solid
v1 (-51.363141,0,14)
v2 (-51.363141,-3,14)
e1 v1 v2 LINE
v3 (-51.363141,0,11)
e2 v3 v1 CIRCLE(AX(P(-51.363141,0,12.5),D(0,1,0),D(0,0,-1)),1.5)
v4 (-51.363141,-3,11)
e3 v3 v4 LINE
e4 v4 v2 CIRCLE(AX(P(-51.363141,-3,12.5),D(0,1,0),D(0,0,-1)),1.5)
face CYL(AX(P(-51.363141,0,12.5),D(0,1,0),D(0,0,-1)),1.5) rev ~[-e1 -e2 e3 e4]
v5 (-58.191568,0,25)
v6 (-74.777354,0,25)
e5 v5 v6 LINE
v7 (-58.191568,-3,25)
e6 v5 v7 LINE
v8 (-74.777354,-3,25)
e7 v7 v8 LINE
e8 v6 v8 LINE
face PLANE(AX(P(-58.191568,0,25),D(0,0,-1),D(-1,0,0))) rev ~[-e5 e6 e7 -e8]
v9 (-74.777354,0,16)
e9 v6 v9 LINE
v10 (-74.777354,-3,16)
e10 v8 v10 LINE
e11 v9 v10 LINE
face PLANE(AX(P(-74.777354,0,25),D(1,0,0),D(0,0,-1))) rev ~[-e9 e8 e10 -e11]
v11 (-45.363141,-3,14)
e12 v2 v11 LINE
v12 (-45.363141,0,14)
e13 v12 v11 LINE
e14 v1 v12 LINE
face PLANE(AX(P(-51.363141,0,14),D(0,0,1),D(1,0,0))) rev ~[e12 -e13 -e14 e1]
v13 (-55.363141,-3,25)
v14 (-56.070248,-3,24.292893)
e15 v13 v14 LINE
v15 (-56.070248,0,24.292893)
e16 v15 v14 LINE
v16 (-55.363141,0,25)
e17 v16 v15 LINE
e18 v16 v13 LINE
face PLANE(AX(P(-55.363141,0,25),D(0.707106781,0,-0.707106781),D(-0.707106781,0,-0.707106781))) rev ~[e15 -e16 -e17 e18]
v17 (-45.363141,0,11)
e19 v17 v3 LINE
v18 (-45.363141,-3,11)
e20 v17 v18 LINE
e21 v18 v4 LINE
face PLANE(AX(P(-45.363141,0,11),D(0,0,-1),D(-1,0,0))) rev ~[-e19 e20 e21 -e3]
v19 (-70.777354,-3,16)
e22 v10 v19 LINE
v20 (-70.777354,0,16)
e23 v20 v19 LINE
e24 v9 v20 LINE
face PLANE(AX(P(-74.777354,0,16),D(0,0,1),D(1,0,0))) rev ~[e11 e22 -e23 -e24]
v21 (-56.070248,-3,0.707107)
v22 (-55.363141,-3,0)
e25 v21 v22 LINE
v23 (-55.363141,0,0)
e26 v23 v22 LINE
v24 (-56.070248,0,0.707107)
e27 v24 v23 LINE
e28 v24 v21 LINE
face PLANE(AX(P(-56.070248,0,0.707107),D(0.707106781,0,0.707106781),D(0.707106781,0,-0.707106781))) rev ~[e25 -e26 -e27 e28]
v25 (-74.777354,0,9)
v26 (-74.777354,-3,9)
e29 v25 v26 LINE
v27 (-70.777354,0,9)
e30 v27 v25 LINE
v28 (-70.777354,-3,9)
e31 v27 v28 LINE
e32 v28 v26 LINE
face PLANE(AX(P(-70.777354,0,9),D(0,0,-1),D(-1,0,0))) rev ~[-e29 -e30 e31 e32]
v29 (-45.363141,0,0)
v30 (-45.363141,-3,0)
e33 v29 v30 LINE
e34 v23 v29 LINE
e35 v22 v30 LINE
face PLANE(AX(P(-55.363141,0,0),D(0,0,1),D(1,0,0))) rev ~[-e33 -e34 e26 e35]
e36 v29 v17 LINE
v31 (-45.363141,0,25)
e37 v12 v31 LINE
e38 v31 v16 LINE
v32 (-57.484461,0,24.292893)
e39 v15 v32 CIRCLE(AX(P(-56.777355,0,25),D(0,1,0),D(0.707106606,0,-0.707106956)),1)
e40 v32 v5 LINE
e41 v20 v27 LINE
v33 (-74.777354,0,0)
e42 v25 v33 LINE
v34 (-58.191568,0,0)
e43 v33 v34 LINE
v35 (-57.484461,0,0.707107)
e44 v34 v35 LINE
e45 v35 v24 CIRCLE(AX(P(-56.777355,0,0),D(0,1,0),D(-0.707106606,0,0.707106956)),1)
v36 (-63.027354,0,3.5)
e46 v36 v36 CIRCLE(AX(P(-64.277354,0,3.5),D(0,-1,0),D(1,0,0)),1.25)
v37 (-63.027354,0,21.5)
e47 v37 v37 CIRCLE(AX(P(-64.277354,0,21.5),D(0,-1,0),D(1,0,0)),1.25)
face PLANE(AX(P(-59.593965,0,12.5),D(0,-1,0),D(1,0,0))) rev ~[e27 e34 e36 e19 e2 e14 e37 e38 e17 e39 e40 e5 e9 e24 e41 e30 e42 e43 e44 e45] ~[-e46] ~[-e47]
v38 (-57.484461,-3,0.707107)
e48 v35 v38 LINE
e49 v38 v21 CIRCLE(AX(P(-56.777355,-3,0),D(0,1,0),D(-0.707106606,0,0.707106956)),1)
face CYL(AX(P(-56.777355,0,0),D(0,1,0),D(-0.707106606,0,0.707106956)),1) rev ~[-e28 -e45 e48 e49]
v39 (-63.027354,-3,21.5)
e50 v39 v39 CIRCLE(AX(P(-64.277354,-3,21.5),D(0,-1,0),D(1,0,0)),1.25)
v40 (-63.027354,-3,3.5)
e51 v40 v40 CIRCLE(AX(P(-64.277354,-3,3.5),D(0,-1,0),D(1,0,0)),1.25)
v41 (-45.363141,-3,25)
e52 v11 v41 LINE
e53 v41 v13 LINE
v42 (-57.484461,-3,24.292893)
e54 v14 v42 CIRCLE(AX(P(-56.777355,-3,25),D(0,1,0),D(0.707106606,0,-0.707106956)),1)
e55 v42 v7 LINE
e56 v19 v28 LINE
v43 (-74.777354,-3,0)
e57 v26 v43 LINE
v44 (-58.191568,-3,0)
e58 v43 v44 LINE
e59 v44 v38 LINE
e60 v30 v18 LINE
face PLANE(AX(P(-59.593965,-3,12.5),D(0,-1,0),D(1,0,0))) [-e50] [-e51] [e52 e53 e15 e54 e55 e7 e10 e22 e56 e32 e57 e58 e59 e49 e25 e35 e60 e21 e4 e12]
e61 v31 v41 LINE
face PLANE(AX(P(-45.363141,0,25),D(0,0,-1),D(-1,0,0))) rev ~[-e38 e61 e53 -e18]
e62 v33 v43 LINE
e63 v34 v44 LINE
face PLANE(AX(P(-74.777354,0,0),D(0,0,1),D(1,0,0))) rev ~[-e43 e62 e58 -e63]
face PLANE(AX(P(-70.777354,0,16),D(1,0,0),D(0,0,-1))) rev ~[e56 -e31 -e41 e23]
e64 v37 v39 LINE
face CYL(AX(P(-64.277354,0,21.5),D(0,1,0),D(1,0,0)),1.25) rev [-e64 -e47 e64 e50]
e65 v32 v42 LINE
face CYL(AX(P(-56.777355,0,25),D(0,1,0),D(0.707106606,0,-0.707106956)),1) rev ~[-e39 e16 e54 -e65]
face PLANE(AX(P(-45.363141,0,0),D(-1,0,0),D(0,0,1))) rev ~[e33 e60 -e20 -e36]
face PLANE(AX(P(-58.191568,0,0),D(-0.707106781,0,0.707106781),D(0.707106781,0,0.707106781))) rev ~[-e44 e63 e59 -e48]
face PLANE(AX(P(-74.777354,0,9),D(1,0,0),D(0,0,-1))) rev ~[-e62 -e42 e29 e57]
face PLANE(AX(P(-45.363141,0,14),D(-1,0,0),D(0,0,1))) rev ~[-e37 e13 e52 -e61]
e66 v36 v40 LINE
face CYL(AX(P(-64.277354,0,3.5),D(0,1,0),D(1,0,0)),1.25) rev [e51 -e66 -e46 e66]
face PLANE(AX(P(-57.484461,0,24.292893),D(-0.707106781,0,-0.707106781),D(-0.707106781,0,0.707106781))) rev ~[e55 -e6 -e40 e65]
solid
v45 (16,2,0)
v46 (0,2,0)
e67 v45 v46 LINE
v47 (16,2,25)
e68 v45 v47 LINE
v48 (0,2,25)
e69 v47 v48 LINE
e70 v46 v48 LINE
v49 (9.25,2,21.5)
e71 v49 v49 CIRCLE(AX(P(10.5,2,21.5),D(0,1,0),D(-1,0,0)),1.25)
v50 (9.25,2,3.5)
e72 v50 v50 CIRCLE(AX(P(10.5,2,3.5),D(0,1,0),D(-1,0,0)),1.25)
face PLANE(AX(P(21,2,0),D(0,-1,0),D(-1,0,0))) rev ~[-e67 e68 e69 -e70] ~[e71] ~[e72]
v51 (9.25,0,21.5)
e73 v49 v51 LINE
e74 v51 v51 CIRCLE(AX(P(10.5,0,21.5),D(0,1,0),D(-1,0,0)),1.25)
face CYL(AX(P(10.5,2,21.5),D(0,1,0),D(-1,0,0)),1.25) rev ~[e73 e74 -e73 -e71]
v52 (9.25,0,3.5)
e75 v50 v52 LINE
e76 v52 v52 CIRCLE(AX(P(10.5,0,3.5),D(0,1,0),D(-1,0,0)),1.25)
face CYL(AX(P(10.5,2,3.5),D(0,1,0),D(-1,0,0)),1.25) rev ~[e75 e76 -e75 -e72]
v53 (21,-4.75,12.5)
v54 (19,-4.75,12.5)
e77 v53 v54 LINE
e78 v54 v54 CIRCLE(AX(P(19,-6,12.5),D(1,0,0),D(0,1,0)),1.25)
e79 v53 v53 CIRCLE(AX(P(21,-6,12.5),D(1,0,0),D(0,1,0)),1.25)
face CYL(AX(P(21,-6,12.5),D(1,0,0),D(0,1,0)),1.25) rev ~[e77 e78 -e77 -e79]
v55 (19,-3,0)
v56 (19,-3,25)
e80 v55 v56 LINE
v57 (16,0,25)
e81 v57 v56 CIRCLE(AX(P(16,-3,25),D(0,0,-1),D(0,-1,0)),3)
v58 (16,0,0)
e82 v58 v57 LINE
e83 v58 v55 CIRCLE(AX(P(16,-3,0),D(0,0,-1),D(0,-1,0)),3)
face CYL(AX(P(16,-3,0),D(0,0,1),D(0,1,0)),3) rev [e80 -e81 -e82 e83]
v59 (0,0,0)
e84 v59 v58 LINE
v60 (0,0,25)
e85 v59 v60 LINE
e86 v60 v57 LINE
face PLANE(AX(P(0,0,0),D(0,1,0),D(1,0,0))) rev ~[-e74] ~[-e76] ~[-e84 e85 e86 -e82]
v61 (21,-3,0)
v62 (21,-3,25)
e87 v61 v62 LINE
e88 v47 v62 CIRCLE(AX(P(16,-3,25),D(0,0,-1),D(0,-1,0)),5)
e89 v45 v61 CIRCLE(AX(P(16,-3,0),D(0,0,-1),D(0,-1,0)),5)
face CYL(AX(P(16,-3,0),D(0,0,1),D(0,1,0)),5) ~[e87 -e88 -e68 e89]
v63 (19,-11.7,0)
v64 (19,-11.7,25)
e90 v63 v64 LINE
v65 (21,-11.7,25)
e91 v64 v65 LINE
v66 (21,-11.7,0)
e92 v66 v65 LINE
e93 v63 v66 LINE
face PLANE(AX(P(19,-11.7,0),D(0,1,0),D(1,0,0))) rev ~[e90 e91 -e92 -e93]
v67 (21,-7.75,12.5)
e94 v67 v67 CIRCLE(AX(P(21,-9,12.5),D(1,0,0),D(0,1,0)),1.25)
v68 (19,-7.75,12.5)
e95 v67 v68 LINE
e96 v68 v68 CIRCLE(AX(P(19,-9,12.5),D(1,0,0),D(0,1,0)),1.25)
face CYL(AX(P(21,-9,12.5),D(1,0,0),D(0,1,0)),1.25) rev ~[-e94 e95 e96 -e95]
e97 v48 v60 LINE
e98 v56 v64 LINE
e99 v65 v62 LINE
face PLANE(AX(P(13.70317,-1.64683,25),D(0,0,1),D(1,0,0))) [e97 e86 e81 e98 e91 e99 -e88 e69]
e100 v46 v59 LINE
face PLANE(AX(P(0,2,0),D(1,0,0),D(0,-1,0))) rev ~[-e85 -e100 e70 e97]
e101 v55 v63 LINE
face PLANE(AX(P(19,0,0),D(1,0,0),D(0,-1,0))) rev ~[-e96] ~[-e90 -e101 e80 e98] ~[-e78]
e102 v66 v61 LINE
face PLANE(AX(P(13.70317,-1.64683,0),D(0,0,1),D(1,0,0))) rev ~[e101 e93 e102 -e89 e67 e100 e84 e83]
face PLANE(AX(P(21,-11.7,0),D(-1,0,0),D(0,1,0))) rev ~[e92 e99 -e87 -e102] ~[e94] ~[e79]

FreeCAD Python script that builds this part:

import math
import FreeCAD as App
import Part
import Sketcher

V = App.Vector
Q = App.Units.Quantity


def edges_at(feature, points):
    """Names of the edges that pass closest to the given points."""
    edges = feature.Shape.Edges
    near = lambda p: min(range(len(edges)), key=lambda i: edges[i].distToShape(Part.Vertex(*p))[0])
    return sorted({f"Edge{near(p) + 1}" for p in points})

doc = App.newDocument("Part")
params = doc.addObject("Spreadsheet::Sheet", "Params")
for row, (alias, value) in enumerate([
    ("sketch1_width", "19 mm"),
    ("sketch1_width2", "2 mm"),
    ("sketch1_height", "11.7 mm"),
    ("pad1_length", "25 mm"),
    ("fillet_radius", "3 mm"),
    ("sketch2_diameter", "2.5 mm"),
    ("pocket1_length", "25 mm"),
    ("sketch3_diameter", "2.5 mm"),
    ("pocket2_length", "25 mm"),
    ("fillet2_radius", "5 mm"),
    ("sketch4_radius", "1 mm"),
    ("sketch4_diameter", "2.5 mm"),
    ("sketch4_radius2", "1.5 mm"),
    ("sketch4_width", "10 mm"),
    ("sketch4_width2", "6 mm"),
    ("pad2_length", "3 mm"),
], start=1):
    params.set(f"A{row}", alias)
    params.set(f"B{row}", "=" + value)
    params.setAlias(f"B{row}", alias)

body = doc.addObject("PartDesign::Body", "Body")

# Sketch on XY plane
sketch1 = doc.addObject("Sketcher::SketchObject", "Sketch")
body.addObject(sketch1)
sketch1.AttachmentSupport = (doc.XY_Plane, [""])
sketch1.MapMode = "FlatFace"
sketch1.addGeometry([
    Part.LineSegment(V(0, 2, 0), V(0, 0, 0)),  # 0
    Part.LineSegment(V(0, 0, 0), V(19, 0, 0)),  # 1
    Part.LineSegment(V(19, 0, 0), V(19, -11.7, 0)),  # 2
    Part.LineSegment(V(19, -11.7, 0), V(21, -11.7, 0)),  # 3
    Part.LineSegment(V(21, -11.7, 0), V(21, 2, 0)),  # 4
    Part.LineSegment(V(21, 2, 0), V(0, 2, 0)),  # 5
], False)
sketch1.addConstraint([
    Sketcher.Constraint("Coincident", 0, 2, 1, 1),
    Sketcher.Constraint("Coincident", 1, 2, 2, 1),
    Sketcher.Constraint("Coincident", 2, 2, 3, 1),
    Sketcher.Constraint("Coincident", 3, 2, 4, 1),
    Sketcher.Constraint("Coincident", 4, 2, 5, 1),
    Sketcher.Constraint("Coincident", 5, 2, 0, 1),
    Sketcher.Constraint("Vertical", 0),
    Sketcher.Constraint("Horizontal", 1),
    Sketcher.Constraint("Vertical", 2),
    Sketcher.Constraint("Horizontal", 3),
    Sketcher.Constraint("Vertical", 4),
    Sketcher.Constraint("Horizontal", 5),
    Sketcher.Constraint("Coincident", 0, 2, -1, 1),
    Sketcher.Constraint("Equal", 3, 0),
    Sketcher.Constraint("DistanceX", 1, 1, 1, 2, Q("19 mm")),
    Sketcher.Constraint("DistanceX", 3, 1, 3, 2, Q("2 mm")),
    Sketcher.Constraint("DistanceY", 2, 2, 2, 1, Q("11.7 mm")),
])
sketch1.setExpression("Constraints[14]", "Params.sketch1_width")
sketch1.setExpression("Constraints[15]", "Params.sketch1_width2")
sketch1.setExpression("Constraints[16]", "Params.sketch1_height")
pad1 = doc.addObject("PartDesign::Pad", "Pad")
body.addObject(pad1)
pad1.Profile = sketch1
pad1.setExpression("Length", "Params.pad1_length")
doc.recompute()

fillet = doc.addObject("PartDesign::Fillet", "Fillet")
body.addObject(fillet)
fillet.Base = (pad1, edges_at(pad1, [(19, 0, 12.5)]))
fillet.setExpression("Radius", "Params.fillet_radius")

# Sketch on YZ plane
sketch2 = doc.addObject("Sketcher::SketchObject", "Sketch001")
body.addObject(sketch2)
sketch2.AttachmentSupport = (doc.YZ_Plane, [""])
sketch2.MapMode = "FlatFace"
sketch2.AttachmentOffset = App.Placement(V(0, 0, 21), App.Rotation())
sketch2.addGeometry([
    Part.Circle(V(-6, 12.5, 0), V(0, 0, 1), 1.2),
    Part.Circle(V(-9, 12.5, 0), V(0, 0, 1), 1.2),
], False)
sketch2.addConstraint([
    Sketcher.Constraint("Equal", 0, 1),
    Sketcher.Constraint("Horizontal", 0, 3, 1, 3),
    Sketcher.Constraint("Diameter", 0, Q("2.5 mm")),
    Sketcher.Constraint("DistanceX", 0, 3, -1, 1, Q("6 mm")),
    Sketcher.Constraint("DistanceX", 1, 3, -1, 1, Q("9 mm")),
    Sketcher.Constraint("DistanceY", -1, 1, 0, 3, Q("12.5 mm")),
])
sketch2.setExpression("Constraints[2]", "Params.sketch2_diameter")
pocket1 = doc.addObject("PartDesign::Pocket", "Pocket")
body.addObject(pocket1)
pocket1.Profile = sketch2
pocket1.setExpression("Length", "Params.pocket1_length")

# Sketch on XZ plane
sketch3 = doc.addObject("Sketcher::SketchObject", "Sketch002")
body.addObject(sketch3)
sketch3.AttachmentSupport = (doc.XZ_Plane, [""])
sketch3.MapMode = "FlatFace"
sketch3.AttachmentOffset = App.Placement(V(0, 0, -2), App.Rotation())
sketch3.addGeometry([
    Part.Circle(V(10.5, 21.5, 0), V(0, 0, 1), 1.2),
    Part.Circle(V(10.5, 3.5, 0), V(0, 0, 1), 1.2),
], False)
sketch3.addConstraint([
    Sketcher.Constraint("Equal", 0, 1),
    Sketcher.Constraint("Vertical", 0, 3, 1, 3),
    Sketcher.Constraint("Diameter", 0, Q("2.5 mm")),
    Sketcher.Constraint("DistanceY", 1, 3, 0, 3, Q("18 mm")),
    Sketcher.Constraint("DistanceX", -1, 1, 0, 3, Q("10.5 mm")),
    Sketcher.Constraint("DistanceY", -1, 1, 0, 3, Q("21.5 mm")),
])
sketch3.setExpression("Constraints[2]", "Params.sketch3_diameter")
pocket2 = doc.addObject("PartDesign::Pocket", "Pocket001")
body.addObject(pocket2)
pocket2.Profile = sketch3
pocket2.setExpression("Length", "Params.pocket2_length")
pocket2.Reversed = True
doc.recompute()

fillet2 = doc.addObject("PartDesign::Fillet", "Fillet001")
body.addObject(fillet2)
fillet2.Base = (pocket2, edges_at(pocket2, [(21, 2, 12.5)]))
fillet2.setExpression("Radius", "Params.fillet2_radius")
body2 = doc.addObject("PartDesign::Body", "Body001")

# Sketch on XZ plane
sketch4 = doc.addObject("Sketcher::SketchObject", "Sketch003")
body2.addObject(sketch4)
sketch4.AttachmentSupport = (doc.getObject("XZ_Plane001"), [""])
sketch4.MapMode = "FlatFace"
sketch4.addGeometry([
    Part.LineSegment(V(-74.8, 9, 0), V(-74.8, 0, 0)),  # 0
    Part.LineSegment(V(-74.8, 0, 0), V(-58.2, 0, 0)),  # 1
    Part.LineSegment(V(-58.2, 0, 0), V(-57.5, 0.7, 0)),  # 2
    Part.ArcOfCircle(Part.Circle(V(-56.8, 0, 0), V(0, 0, 1), 1), math.radians(45), math.radians(135)),  # 3
    Part.LineSegment(V(-56.1, 0.7, 0), V(-55.4, 0, 0)),  # 4
    Part.LineSegment(V(-55.4, 0, 0), V(-45.4, 0, 0)),  # 5
    Part.LineSegment(V(-45.4, 0, 0), V(-45.4, 11, 0)),  # 6
    Part.LineSegment(V(-45.4, 11, 0), V(-51.4, 11, 0)),  # 7
    Part.ArcOfCircle(Part.Circle(V(-51.4, 12.5, 0), V(0, 0, 1), 1.5), math.radians(90), math.radians(270)),  # 8
    Part.LineSegment(V(-51.4, 14, 0), V(-45.4, 14, 0)),  # 9
    Part.LineSegment(V(-45.4, 14, 0), V(-45.4, 25, 0)),  # 10
    Part.LineSegment(V(-45.4, 25, 0), V(-55.4, 25, 0)),  # 11
    Part.LineSegment(V(-55.4, 25, 0), V(-56.1, 24.3, 0)),  # 12
    Part.ArcOfCircle(Part.Circle(V(-56.8, 25, 0), V(0, 0, 1), 1), math.radians(-135), math.radians(-45)),  # 13
    Part.LineSegment(V(-57.5, 24.3, 0), V(-58.2, 25, 0)),  # 14
    Part.LineSegment(V(-58.2, 25, 0), V(-74.8, 25, 0)),  # 15
    Part.LineSegment(V(-74.8, 25, 0), V(-74.8, 16, 0)),  # 16
    Part.LineSegment(V(-74.8, 16, 0), V(-70.8, 16, 0)),  # 17
    Part.LineSegment(V(-70.8, 16, 0), V(-70.8, 9, 0)),  # 18
    Part.LineSegment(V(-70.8, 9, 0), V(-74.8, 9, 0)),  # 19
    Part.Circle(V(-64.3, 3.5, 0), V(0, 0, 1), 1.2),  # 20
    Part.Circle(V(-64.3, 21.5, 0), V(0, 0, 1), 1.2),  # 21
], False)
sketch4.addConstraint([
    Sketcher.Constraint("Coincident", 0, 2, 1, 1),
    Sketcher.Constraint("Coincident", 1, 2, 2, 1),
    Sketcher.Constraint("Tangent", 2, 2, 3, 2),
    Sketcher.Constraint("Tangent", 3, 1, 4, 1),
    Sketcher.Constraint("Coincident", 4, 2, 5, 1),
    Sketcher.Constraint("Coincident", 5, 2, 6, 1),
    Sketcher.Constraint("Coincident", 6, 2, 7, 1),
    Sketcher.Constraint("Tangent", 7, 2, 8, 2),
    Sketcher.Constraint("Tangent", 8, 1, 9, 1),
    Sketcher.Constraint("Coincident", 9, 2, 10, 1),
    Sketcher.Constraint("Coincident", 10, 2, 11, 1),
    Sketcher.Constraint("Coincident", 11, 2, 12, 1),
    Sketcher.Constraint("Tangent", 12, 2, 13, 2),
    Sketcher.Constraint("Tangent", 13, 1, 14, 1),
    Sketcher.Constraint("Coincident", 14, 2, 15, 1),
    Sketcher.Constraint("Coincident", 15, 2, 16, 1),
    Sketcher.Constraint("Coincident", 16, 2, 17, 1),
    Sketcher.Constraint("Coincident", 17, 2, 18, 1),
    Sketcher.Constraint("Coincident", 18, 2, 19, 1),
    Sketcher.Constraint("Coincident", 19, 2, 0, 1),
    Sketcher.Constraint("Vertical", 0),
    Sketcher.Constraint("Horizontal", 1),
    Sketcher.Constraint("Horizontal", 5),
    Sketcher.Constraint("Vertical", 6),
    Sketcher.Constraint("Horizontal", 7),
    Sketcher.Constraint("Horizontal", 9),
    Sketcher.Constraint("Vertical", 10),
    Sketcher.Constraint("Horizontal", 11),
    Sketcher.Constraint("Horizontal", 15),
    Sketcher.Constraint("Vertical", 16),
    Sketcher.Constraint("Horizontal", 17),
    Sketcher.Constraint("Vertical", 18),
    Sketcher.Constraint("Horizontal", 19),
    Sketcher.Constraint("Equal", 3, 13),
    Sketcher.Constraint("Equal", 20, 21),
    Sketcher.Constraint("PointOnObject", 3, 3, -1),
    Sketcher.Constraint("PointOnObject", 0, 2, -1),
    Sketcher.Constraint("PointOnObject", 4, 2, -1),
    Sketcher.Constraint("Perpendicular", 2, 4),
    Sketcher.Constraint("Perpendicular", 4, 12),
    Sketcher.Constraint("Perpendicular", 12, 14),
    Sketcher.Constraint("Horizontal", 2, 2, 3, 1),
    Sketcher.Constraint("Horizontal", 13, 3, 10, 2),
    Sketcher.Constraint("Horizontal", 11, 2, 14, 2),
    Sketcher.Constraint("Vertical", 3, 3, 13, 3),
    Sketcher.Constraint("Vertical", 20, 3, 21, 3),
    Sketcher.Constraint("Vertical", 6, 2, 9, 2),
    Sketcher.Constraint("Vertical", 0, 2, 15, 2),
    Sketcher.Constraint("Equal", 6, 10),
    Sketcher.Constraint("Equal", 0, 16),
    Sketcher.Constraint("Radius", 3, Q("1 mm")),
    Sketcher.Constraint("Diameter", 20, Q("2.5 mm")),
    Sketcher.Constraint("Radius", 8, Q("1.5 mm")),
    Sketcher.Constraint("DistanceX", 5, 1, 5, 2, Q("10 mm")),
    Sketcher.Constraint("DistanceX", 7, 2, 7, 1, Q("6 mm")),
    Sketcher.Constraint("DistanceX", 17, 1, 17, 2, Q("4 mm")),
    Sketcher.Constraint("DistanceY", 0, 2, 0, 1, Q("9 mm")),
    Sketcher.Constraint("DistanceY", 6, 1, 6, 2, Q("11 mm")),
    Sketcher.Constraint("DistanceY", 20, 3, 8, 3, Q("9 mm")),
    Sketcher.Constraint("DistanceY", 8, 3, 21, 3, Q("9 mm")),
    Sketcher.Constraint("DistanceX", 0, 2, 3, 3, Q("18 mm")),
    Sketcher.Constraint("DistanceX", 20, 3, 3, 3, Q("7.5 mm")),
    Sketcher.Constraint("DistanceX", 8, 3, -1, 1, Q("51.363141 mm")),
])
sketch4.setExpression("Constraints[50]", "Params.sketch4_radius")
sketch4.setExpression("Constraints[51]", "Params.sketch4_diameter")
sketch4.setExpression("Constraints[52]", "Params.sketch4_radius2")
sketch4.setExpression("Constraints[53]", "Params.sketch4_width")
sketch4.setExpression("Constraints[54]", "Params.sketch4_width2")
pad2 = doc.addObject("PartDesign::Pad", "Pad001")
body2.addObject(pad2)
pad2.Profile = sketch4
pad2.setExpression("Length", "Params.pad2_length")

doc.recompute()
